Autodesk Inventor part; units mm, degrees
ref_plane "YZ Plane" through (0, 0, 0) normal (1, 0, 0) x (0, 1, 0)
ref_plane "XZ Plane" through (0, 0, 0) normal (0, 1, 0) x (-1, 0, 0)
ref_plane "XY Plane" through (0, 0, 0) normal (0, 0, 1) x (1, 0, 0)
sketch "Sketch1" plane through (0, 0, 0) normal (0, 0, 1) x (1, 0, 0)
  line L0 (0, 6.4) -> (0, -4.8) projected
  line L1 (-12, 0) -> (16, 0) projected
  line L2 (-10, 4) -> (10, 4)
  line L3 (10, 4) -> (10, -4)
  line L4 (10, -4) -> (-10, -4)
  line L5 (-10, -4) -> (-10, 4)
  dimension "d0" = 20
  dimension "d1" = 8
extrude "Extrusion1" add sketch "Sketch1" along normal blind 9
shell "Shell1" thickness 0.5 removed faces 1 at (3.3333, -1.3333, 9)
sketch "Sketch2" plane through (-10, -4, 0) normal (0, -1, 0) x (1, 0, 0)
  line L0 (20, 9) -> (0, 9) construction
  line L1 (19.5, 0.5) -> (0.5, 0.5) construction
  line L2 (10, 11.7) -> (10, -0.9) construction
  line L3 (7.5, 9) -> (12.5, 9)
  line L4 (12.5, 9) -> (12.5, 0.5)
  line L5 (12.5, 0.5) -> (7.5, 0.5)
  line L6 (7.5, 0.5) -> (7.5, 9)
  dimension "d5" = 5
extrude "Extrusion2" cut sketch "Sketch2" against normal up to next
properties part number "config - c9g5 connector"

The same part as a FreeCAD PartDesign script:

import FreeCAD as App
import Part
import Sketcher
from FreeCAD import Vector


def faces_at(feature, points):
    """Names of the faces that lie closest to the given points."""
    faces = feature.Shape.Faces
    near = lambda p: min(range(len(faces)), key=lambda i: faces[i].distToShape(Part.Vertex(*p))[0])
    return sorted({f"Face{near(p) + 1}" for p in points})

doc = App.newDocument("Part")
params = doc.addObject("Spreadsheet::Sheet", "Params")
for row, (alias, value) in enumerate([
    ("sketch1_width", "20 mm"),
    ("sketch1_height", "8 mm"),
    ("pad1_length", "9 mm"),
    ("thickness_wall", "0.5 mm"),
    ("sketch2_width", "5 mm"),
    ("sketch2_height", "8.5 mm"),
], start=1):
    params.set(f"A{row}", alias)
    params.set(f"B{row}", "=" + value)
    params.setAlias(f"B{row}", alias)

body = doc.addObject("PartDesign::Body", "Body")

# Sketch on XY plane
sketch1 = doc.addObject("Sketcher::SketchObject", "Sketch")
body.addObject(sketch1)
sketch1.AttachmentSupport = (doc.XY_Plane, [""])
sketch1.MapMode = "FlatFace"
sketch1.addGeometry([
    Part.LineSegment(Vector(10, 4, 0), Vector(-10, 4, 0)),
    Part.LineSegment(Vector(-10, 4, 0), Vector(-10, -4, 0)),
    Part.LineSegment(Vector(-10, -4, 0), Vector(10, -4, 0)),
    Part.LineSegment(Vector(10, -4, 0), Vector(10, 4, 0)),
], False)
sketch1.addConstraint([
    Sketcher.Constraint("Coincident", 0, 2, 1, 1),
    Sketcher.Constraint("Coincident", 1, 2, 2, 1),
    Sketcher.Constraint("Coincident", 2, 2, 3, 1),
    Sketcher.Constraint("Coincident", 3, 2, 0, 1),
    Sketcher.Constraint("Horizontal", 0),
    Sketcher.Constraint("Vertical", 1),
    Sketcher.Constraint("Horizontal", 2),
    Sketcher.Constraint("Vertical", 3),
    Sketcher.Constraint("Symmetric", 0, 2, 2, 2, -1, 1),
    Sketcher.Constraint("DistanceX", 0, 2, 0, 1, 20.0),
    Sketcher.Constraint("DistanceY", 1, 2, 1, 1, 8.0),
])
sketch1.setExpression("Constraints[9]", "Params.sketch1_width")
sketch1.setExpression("Constraints[10]", "Params.sketch1_height")
pad1 = doc.addObject("PartDesign::Pad", "Pad")
body.addObject(pad1)
pad1.Profile = sketch1
pad1.setExpression("Length", "Params.pad1_length")
doc.recompute()

thickness = doc.addObject("PartDesign::Thickness", "Thickness")
body.addObject(thickness)
thickness.Base = (pad1, faces_at(pad1, [(3.333, -1.333, 9)]))
thickness.setExpression("Value", "Params.thickness_wall")
thickness.Reversed = True
thickness.Join = "Intersection"

# Sketch on XZ plane
sketch2 = doc.addObject("Sketcher::SketchObject", "Sketch001")
body.addObject(sketch2)
sketch2.AttachmentSupport = (doc.XZ_Plane, [""])
sketch2.MapMode = "FlatFace"
sketch2.AttachmentOffset = App.Placement(Vector(0, 0, 4), App.Rotation())
sketch2.addGeometry([
    Part.LineSegment(Vector(2, 9, 0), Vector(-2, 9, 0)),
    Part.LineSegment(Vector(-2, 9, 0), Vector(-2, 0, 0)),
    Part.LineSegment(Vector(-2, 0, 0), Vector(2, 0, 0)),
    Part.LineSegment(Vector(2, 0, 0), Vector(2, 9, 0)),
], False)
sketch2.addConstraint([
    Sketcher.Constraint("Coincident", 0, 2, 1, 1),
    Sketcher.Constraint("Coincident", 1, 2, 2, 1),
    Sketcher.Constraint("Coincident", 2, 2, 3, 1),
    Sketcher.Constraint("Coincident", 3, 2, 0, 1),
    Sketcher.Constraint("Horizontal", 0),
    Sketcher.Constraint("Vertical", 1),
    Sketcher.Constraint("Horizontal", 2),
    Sketcher.Constraint("Vertical", 3),
    Sketcher.Constraint("DistanceX", 0, 2, 0, 1, 5.0),
    Sketcher.Constraint("DistanceY", 1, 2, 1, 1, 8.5),
    Sketcher.Constraint("DistanceY", -1, 1, 0, 2, 9.0),
    Sketcher.Constraint("DistanceX", 0, 2, -1, 1, 2.5),
])
sketch2.setExpression("Constraints[8]", "Params.sketch2_width")
sketch2.setExpression("Constraints[9]", "Params.sketch2_height")
pocket1 = doc.addObject("PartDesign::Pocket", "Pocket")
body.addObject(pocket1)
pocket1.Profile = sketch2
pocket1.Type = "UpToFirst"

doc.recompute()
